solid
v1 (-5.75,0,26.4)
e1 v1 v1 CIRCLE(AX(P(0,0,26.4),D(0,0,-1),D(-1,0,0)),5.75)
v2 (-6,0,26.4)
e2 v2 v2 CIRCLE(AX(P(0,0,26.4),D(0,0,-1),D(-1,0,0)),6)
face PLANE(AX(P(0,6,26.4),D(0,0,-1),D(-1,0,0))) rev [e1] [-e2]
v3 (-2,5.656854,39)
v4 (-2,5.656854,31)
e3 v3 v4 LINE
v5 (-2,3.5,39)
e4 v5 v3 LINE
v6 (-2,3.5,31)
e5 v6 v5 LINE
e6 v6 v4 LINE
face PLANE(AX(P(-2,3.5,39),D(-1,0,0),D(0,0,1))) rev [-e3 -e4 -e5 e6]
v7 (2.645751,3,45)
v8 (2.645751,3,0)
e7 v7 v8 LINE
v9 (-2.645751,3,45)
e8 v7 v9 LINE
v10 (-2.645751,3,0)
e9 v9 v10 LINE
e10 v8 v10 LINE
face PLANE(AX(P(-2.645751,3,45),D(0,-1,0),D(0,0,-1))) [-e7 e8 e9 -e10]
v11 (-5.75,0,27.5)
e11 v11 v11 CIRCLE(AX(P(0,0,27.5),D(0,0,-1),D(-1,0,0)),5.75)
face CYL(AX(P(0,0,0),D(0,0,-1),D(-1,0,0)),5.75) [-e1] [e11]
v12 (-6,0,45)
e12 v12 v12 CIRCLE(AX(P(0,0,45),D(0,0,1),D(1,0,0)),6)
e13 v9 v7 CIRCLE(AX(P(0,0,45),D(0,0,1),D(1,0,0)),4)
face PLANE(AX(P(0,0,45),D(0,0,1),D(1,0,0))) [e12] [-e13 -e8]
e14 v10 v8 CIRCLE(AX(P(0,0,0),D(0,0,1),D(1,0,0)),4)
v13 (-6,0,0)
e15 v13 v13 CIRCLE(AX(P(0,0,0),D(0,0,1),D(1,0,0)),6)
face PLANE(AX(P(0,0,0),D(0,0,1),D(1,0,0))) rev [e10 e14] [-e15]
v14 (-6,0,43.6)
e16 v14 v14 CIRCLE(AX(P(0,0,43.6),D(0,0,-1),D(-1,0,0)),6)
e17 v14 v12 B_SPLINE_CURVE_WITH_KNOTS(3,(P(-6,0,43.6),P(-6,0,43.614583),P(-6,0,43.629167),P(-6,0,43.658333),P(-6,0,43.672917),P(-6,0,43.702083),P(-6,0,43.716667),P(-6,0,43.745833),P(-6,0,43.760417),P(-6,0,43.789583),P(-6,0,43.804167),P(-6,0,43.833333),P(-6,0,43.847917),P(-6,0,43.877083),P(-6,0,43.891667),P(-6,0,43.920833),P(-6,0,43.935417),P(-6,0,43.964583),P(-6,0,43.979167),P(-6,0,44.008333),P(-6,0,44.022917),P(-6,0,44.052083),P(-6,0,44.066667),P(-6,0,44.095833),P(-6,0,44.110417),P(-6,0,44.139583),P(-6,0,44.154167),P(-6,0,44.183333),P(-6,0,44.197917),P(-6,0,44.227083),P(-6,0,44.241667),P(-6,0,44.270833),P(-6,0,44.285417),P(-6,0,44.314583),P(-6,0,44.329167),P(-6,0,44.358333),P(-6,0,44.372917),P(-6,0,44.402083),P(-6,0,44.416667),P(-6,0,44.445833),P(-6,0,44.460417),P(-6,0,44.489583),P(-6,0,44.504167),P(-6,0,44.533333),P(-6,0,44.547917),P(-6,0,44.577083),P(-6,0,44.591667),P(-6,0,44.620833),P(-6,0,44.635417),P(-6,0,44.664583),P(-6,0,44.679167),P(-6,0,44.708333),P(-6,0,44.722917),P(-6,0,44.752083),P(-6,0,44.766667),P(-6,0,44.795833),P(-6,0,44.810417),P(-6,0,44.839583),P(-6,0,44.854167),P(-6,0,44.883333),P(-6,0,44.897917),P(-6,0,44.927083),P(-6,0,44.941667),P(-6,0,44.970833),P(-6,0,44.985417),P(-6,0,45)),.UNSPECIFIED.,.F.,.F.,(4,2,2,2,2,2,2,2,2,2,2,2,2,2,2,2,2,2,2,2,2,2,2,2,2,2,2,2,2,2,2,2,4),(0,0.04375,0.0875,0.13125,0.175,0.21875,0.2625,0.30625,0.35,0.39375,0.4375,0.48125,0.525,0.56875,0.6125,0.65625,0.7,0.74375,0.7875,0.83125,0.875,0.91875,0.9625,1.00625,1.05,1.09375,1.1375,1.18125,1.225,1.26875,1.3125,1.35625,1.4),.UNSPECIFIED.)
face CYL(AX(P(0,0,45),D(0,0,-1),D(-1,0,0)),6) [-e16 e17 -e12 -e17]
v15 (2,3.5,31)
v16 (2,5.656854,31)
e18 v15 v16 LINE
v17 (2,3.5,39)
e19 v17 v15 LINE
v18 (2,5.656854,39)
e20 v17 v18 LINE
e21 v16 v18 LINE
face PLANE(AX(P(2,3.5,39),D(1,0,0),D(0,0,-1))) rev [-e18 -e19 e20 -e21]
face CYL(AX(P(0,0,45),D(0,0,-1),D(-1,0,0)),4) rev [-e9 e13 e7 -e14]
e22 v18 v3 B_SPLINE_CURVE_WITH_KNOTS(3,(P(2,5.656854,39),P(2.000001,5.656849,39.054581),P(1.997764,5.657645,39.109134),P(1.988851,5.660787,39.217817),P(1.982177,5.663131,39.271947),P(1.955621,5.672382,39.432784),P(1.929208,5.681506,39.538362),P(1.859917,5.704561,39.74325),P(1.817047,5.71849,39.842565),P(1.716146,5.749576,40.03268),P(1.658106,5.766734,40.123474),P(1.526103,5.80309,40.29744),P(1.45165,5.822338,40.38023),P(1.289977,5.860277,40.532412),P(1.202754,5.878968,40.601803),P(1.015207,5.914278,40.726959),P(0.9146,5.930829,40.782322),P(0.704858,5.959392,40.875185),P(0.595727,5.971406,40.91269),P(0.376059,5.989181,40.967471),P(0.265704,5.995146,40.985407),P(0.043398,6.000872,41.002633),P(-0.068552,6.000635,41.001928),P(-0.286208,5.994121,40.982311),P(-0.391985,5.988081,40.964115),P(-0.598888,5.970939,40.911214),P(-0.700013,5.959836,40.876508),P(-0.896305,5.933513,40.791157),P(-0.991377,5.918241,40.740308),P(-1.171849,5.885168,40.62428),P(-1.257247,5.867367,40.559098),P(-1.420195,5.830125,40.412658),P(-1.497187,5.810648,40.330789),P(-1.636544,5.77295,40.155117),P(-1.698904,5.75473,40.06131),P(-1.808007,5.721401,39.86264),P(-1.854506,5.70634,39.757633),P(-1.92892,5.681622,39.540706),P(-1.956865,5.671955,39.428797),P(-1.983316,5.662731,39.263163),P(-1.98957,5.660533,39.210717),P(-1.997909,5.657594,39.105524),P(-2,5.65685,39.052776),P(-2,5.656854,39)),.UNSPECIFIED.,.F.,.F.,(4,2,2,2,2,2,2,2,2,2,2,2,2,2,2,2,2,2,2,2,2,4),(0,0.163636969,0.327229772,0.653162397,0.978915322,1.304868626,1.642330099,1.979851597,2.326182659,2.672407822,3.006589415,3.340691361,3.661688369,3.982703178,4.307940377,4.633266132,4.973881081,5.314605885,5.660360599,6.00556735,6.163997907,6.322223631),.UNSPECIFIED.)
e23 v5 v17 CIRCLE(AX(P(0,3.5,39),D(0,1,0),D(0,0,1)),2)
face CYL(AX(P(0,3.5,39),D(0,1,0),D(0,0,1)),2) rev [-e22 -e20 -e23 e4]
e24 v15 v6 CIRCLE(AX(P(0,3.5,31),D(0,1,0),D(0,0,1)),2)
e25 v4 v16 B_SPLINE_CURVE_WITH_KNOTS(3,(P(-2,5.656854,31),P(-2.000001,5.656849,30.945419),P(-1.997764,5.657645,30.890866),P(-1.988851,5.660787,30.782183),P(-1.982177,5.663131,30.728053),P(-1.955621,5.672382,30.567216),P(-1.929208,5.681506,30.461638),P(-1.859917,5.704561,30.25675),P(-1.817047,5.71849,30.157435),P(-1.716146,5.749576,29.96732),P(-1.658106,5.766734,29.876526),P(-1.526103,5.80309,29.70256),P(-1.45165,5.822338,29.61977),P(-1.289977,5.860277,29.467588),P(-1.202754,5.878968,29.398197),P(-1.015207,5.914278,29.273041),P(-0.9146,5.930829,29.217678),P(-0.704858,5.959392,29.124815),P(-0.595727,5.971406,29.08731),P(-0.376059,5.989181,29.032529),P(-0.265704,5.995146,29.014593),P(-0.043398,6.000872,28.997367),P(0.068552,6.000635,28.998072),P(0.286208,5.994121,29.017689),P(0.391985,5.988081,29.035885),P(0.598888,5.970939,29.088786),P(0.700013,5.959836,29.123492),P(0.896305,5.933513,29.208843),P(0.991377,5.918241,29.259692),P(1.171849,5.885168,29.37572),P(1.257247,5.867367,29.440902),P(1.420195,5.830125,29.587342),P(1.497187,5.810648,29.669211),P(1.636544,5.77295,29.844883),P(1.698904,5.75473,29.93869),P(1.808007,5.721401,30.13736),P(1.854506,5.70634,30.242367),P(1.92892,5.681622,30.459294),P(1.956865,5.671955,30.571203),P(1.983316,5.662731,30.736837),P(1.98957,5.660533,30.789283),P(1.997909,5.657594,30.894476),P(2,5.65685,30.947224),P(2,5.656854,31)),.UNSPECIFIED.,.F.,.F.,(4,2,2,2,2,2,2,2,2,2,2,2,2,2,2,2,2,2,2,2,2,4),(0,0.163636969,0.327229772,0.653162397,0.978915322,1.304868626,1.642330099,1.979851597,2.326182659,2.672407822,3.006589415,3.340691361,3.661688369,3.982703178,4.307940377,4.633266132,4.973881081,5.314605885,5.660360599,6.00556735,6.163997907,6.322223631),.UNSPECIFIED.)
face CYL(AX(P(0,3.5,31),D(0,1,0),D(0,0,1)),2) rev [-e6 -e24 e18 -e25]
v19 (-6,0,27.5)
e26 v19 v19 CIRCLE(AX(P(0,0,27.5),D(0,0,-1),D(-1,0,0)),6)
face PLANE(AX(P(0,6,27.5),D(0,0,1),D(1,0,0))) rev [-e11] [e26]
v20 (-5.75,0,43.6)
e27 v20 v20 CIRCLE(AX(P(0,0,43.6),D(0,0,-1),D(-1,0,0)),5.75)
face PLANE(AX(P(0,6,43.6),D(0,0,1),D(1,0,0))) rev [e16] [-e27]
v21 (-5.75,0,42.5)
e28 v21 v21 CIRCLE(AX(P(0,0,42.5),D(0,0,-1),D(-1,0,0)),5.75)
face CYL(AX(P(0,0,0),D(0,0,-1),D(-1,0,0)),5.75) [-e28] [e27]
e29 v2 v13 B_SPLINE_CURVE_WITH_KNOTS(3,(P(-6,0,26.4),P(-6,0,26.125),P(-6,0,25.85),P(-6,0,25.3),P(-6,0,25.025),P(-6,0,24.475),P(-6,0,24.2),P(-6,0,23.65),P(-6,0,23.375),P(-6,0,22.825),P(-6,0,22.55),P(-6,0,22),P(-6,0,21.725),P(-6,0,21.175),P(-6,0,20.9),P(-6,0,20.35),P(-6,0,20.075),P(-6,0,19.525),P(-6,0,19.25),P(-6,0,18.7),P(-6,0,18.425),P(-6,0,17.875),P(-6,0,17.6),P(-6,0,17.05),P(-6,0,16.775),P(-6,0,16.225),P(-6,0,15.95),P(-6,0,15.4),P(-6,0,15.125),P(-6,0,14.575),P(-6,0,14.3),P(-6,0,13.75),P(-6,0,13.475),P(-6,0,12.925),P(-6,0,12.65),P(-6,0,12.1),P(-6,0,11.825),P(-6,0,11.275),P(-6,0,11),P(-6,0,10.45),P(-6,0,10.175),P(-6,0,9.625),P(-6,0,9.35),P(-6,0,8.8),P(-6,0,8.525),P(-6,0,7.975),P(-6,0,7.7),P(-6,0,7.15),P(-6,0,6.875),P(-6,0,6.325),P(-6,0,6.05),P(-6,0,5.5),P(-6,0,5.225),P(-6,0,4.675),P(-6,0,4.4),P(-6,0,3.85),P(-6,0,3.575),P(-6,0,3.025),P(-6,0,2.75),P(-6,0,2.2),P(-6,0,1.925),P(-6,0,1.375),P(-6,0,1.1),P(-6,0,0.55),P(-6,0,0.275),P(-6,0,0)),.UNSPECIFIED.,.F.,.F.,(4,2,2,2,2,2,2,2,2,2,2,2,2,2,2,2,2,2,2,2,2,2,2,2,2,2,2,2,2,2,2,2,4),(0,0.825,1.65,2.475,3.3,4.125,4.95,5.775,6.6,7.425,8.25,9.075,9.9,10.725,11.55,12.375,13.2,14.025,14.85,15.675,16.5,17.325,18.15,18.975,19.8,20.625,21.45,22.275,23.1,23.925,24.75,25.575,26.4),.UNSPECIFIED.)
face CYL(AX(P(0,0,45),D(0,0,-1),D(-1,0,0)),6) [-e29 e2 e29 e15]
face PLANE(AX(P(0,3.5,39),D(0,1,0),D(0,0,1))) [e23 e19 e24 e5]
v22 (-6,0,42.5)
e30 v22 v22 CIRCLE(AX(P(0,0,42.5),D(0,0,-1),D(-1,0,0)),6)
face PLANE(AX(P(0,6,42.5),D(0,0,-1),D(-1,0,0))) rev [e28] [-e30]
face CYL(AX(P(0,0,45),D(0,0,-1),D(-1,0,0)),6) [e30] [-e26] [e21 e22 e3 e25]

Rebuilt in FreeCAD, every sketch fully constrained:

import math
import FreeCAD as App
import Part
import Sketcher

V = App.Vector
Q = App.Units.Quantity


def add_polygon(sketch, points):
    """Adds a closed chain of lines whose ends are joined by coincident constraints."""
    first, n = sketch.GeometryCount, len(points)
    for a, b in zip(points, points[1:] + points[:1]):
        sketch.addGeometry(Part.LineSegment(App.Vector(*a, 0), App.Vector(*b, 0)), False)
    for i in range(n):
        sketch.addConstraint(Sketcher.Constraint("Coincident", first + i, 2, first + (i + 1) % n, 1))

doc = App.newDocument("Part")
body = doc.addObject("PartDesign::Body", "Body")

# Sketch on XY plane
sketch1 = body.newObject("Sketcher::SketchObject", "Sketch")
sketch1.AttachmentSupport = (doc.getObject("XY_Plane"), [""])
sketch1.MapMode = "FlatFace"
sketch1.addGeometry([
    Part.Circle(V(0, 0, 0), V(0, 0, 1), 6),
    Part.ArcOfCircle(Part.Circle(V(0, 0, 0), V(0, 0, 1), 4), math.radians(131), math.radians(409)),
    Part.LineSegment(V(-2.6, 3, 0), V(2.6, 3, 0)),
], False)
sketch1.addConstraint([
    Sketcher.Constraint("Coincident", 1, 1, 2, 1),
    Sketcher.Constraint("Coincident", 2, 2, 1, 2),
    Sketcher.Constraint("Horizontal", 2),
    Sketcher.Constraint("Coincident", 0, 3, -1, 1),
    Sketcher.Constraint("Coincident", 1, 3, -1, 1),
    Sketcher.Constraint("Diameter", 0, Q("12 mm")),
    Sketcher.Constraint("Radius", 1, Q("4 mm")),
    Sketcher.Constraint("DistanceY", -1, 1, 1, 1, Q("3 mm")),
])
pad1 = body.newObject("PartDesign::Pad", "Pad")
pad1.Profile = sketch1
pad1.Length = 45

# Sketch on XZ plane
sketch2 = body.newObject("Sketcher::SketchObject", "Sketch001")
sketch2.AttachmentSupport = (doc.getObject("XZ_Plane"), [""])
sketch2.MapMode = "FlatFace"
sketch2.AttachmentOffset = App.Placement(V(0, 0, -6), App.Rotation())
sketch2.addGeometry([
    Part.LineSegment(V(-2, 31, 0), V(-2, 39, 0)),
    Part.ArcOfCircle(Part.Circle(V(0, 39, 0), V(0, 0, 1), 2), math.radians(0), math.radians(180)),
    Part.LineSegment(V(2, 39, 0), V(2, 31, 0)),
    Part.ArcOfCircle(Part.Circle(V(0, 31, 0), V(0, 0, 1), 2), math.radians(180), math.radians(360)),
], False)
sketch2.addConstraint([
    Sketcher.Constraint("Tangent", 0, 2, 1, 2),
    Sketcher.Constraint("Tangent", 1, 1, 2, 1),
    Sketcher.Constraint("Tangent", 2, 2, 3, 2),
    Sketcher.Constraint("Tangent", 3, 1, 0, 1),
    Sketcher.Constraint("Vertical", 0),
    Sketcher.Constraint("Vertical", 2),
    Sketcher.Constraint("PointOnObject", 1, 3, -2),
    Sketcher.Constraint("Radius", 1, Q("2 mm")),
    Sketcher.Constraint("DistanceY", 0, 1, 0, 2, Q("8 mm")),
    Sketcher.Constraint("DistanceY", -1, 1, 1, 3, Q("39 mm")),
])
pocket1 = body.newObject("PartDesign::Pocket", "Pocket")
pocket1.Profile = sketch2
pocket1.Length = 2.5
pocket1.Reversed = True

# Sketch on YZ plane
sketch3 = body.newObject("Sketcher::SketchObject", "Sketch002")
sketch3.AttachmentSupport = (doc.getObject("YZ_Plane"), [""])
sketch3.MapMode = "FlatFace"
add_polygon(sketch3, [(6, 27.5), (5.75, 27.5), (5.75, 26.4), (6, 26.4)])  # lines 0-3
add_polygon(sketch3, [(6, 43.6), (5.75, 43.6), (5.75, 42.5), (6, 42.5)])  # lines 4-7
sketch3.addConstraint([
    Sketcher.Constraint("Horizontal", 0),
    Sketcher.Constraint("Vertical", 1),
    Sketcher.Constraint("Horizontal", 2),
    Sketcher.Constraint("Vertical", 3),
    Sketcher.Constraint("Horizontal", 4),
    Sketcher.Constraint("Vertical", 5),
    Sketcher.Constraint("Horizontal", 6),
    Sketcher.Constraint("Vertical", 7),
    Sketcher.Constraint("Vertical", 1, 2, 4, 2),
    Sketcher.Constraint("Vertical", 3, 2, 6, 2),
    Sketcher.Constraint("Equal", 3, 5),
    Sketcher.Constraint("DistanceY", 1, 2, 1, 1, Q("1.1 mm")),
    Sketcher.Constraint("DistanceX", -1, 1, 2, 2, Q("6 mm")),
    Sketcher.Constraint("DistanceY", 0, 2, 5, 2, Q("15 mm")),
    Sketcher.Constraint("DistanceX", 0, 2, 0, 1, Q("0.25 mm")),
    Sketcher.Constraint("DistanceY", -1, 1, 0, 2, Q("27.5 mm")),
])
groove = body.newObject("PartDesign::Groove", "Groove")
groove.Profile = sketch3
groove.ReferenceAxis = (sketch3, ["V_Axis"])
groove.Angle = 360

doc.recompute()
